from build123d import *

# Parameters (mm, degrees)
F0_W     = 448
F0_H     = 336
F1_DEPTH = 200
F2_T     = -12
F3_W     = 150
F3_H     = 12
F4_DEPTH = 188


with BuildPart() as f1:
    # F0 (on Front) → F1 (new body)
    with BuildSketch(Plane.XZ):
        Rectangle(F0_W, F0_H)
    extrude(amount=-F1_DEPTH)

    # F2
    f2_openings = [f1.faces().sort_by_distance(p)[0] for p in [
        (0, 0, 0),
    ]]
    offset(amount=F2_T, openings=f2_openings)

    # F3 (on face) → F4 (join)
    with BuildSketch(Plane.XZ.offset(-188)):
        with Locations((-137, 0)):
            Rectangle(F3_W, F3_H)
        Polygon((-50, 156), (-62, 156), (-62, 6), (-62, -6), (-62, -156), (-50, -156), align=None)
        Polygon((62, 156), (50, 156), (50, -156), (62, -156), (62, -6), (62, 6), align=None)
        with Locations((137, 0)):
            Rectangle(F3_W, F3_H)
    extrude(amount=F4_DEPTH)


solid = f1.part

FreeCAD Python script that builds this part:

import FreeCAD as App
import Part
import Sketcher
from FreeCAD import Vector


def faces_at(feature, points):
    """Names of the faces that lie closest to the given points."""
    faces = feature.Shape.Faces
    near = lambda p: min(range(len(faces)), key=lambda i: faces[i].distToShape(Part.Vertex(*p))[0])
    return sorted({f"Face{near(p) + 1}" for p in points})

doc = App.newDocument("Part")
body = doc.addObject("PartDesign::Body", "Body")

# Sketch on XZ plane
sketch1 = body.newObject("Sketcher::SketchObject", "Sketch")
sketch1.AttachmentSupport = (doc.getObject("XZ_Plane"), [""])
sketch1.MapMode = "FlatFace"
sketch1.addGeometry(Part.LineSegment(Vector(-224, 168, 0), Vector(-224, -168, 0)), False)
sketch1.addGeometry(Part.LineSegment(Vector(-224, -168, 0), Vector(224, -168, 0)), False)
sketch1.addGeometry(Part.LineSegment(Vector(224, -168, 0), Vector(224, 168, 0)), False)
sketch1.addGeometry(Part.LineSegment(Vector(224, 168, 0), Vector(-224, 168, 0)), False)
sketch1.addConstraint(Sketcher.Constraint("Coincident", 0, 2, 1, 1))
sketch1.addConstraint(Sketcher.Constraint("Coincident", 1, 2, 2, 1))
sketch1.addConstraint(Sketcher.Constraint("Coincident", 2, 2, 3, 1))
sketch1.addConstraint(Sketcher.Constraint("Coincident", 3, 2, 0, 1))
sketch1.addConstraint(Sketcher.Constraint("Vertical", 0))
sketch1.addConstraint(Sketcher.Constraint("Horizontal", 1))
sketch1.addConstraint(Sketcher.Constraint("Vertical", 2))
sketch1.addConstraint(Sketcher.Constraint("Horizontal", 3))
sketch1.addConstraint(Sketcher.Constraint("Symmetric", 0, 2, 2, 2, -1, 1))
sketch1.addConstraint(Sketcher.Constraint("DistanceX", 1, 1, 1, 2, 448.0))
sketch1.addConstraint(Sketcher.Constraint("DistanceY", 0, 2, 0, 1, 336.0))
pad1 = body.newObject("PartDesign::Pad", "Pad")
pad1.Profile = sketch1
pad1.Length = 200
pad1.Reversed = True
doc.recompute()

thickness = body.newObject("PartDesign::Thickness", "Thickness")
thickness.Base = (pad1, faces_at(pad1, [(0, 0, 0)]))
thickness.Value = 12
thickness.Reversed = True
thickness.Join = "Arc"

# Sketch on XZ plane
sketch2 = body.newObject("Sketcher::SketchObject", "Sketch001")
sketch2.AttachmentSupport = (doc.getObject("XZ_Plane"), [""])
sketch2.MapMode = "FlatFace"
sketch2.AttachmentOffset = App.Placement(Vector(0, 0, -188), App.Rotation())
sketch2.addGeometry(Part.LineSegment(Vector(-212, 6, 0), Vector(-212, -6, 0)), False)
sketch2.addGeometry(Part.LineSegment(Vector(-212, -6, 0), Vector(-62, -6, 0)), False)
sketch2.addGeometry(Part.LineSegment(Vector(-62, -6, 0), Vector(-62, -156, 0)), False)
sketch2.addGeometry(Part.LineSegment(Vector(-62, -156, 0), Vector(-50, -156, 0)), False)
sketch2.addGeometry(Part.LineSegment(Vector(-50, -156, 0), Vector(-50, 156, 0)), False)
sketch2.addGeometry(Part.LineSegment(Vector(-50, 156, 0), Vector(-62, 156, 0)), False)
sketch2.addGeometry(Part.LineSegment(Vector(-62, 156, 0), Vector(-62, 6, 0)), False)
sketch2.addGeometry(Part.LineSegment(Vector(-62, 6, 0), Vector(-212, 6, 0)), False)
sketch2.addGeometry(Part.LineSegment(Vector(62, 156, 0), Vector(50, 156, 0)), False)
sketch2.addGeometry(Part.LineSegment(Vector(50, 156, 0), Vector(50, -156, 0)), False)
sketch2.addGeometry(Part.LineSegment(Vector(50, -156, 0), Vector(62, -156, 0)), False)
sketch2.addGeometry(Part.LineSegment(Vector(62, -156, 0), Vector(62, -6, 0)), False)
sketch2.addGeometry(Part.LineSegment(Vector(62, -6, 0), Vector(212, -6, 0)), False)
sketch2.addGeometry(Part.LineSegment(Vector(212, -6, 0), Vector(212, 6, 0)), False)
sketch2.addGeometry(Part.LineSegment(Vector(212, 6, 0), Vector(62, 6, 0)), False)
sketch2.addGeometry(Part.LineSegment(Vector(62, 6, 0), Vector(62, 156, 0)), False)
sketch2.addConstraint(Sketcher.Constraint("Coincident", 0, 2, 1, 1))
sketch2.addConstraint(Sketcher.Constraint("Coincident", 1, 2, 2, 1))
sketch2.addConstraint(Sketcher.Constraint("Coincident", 2, 2, 3, 1))
sketch2.addConstraint(Sketcher.Constraint("Coincident", 3, 2, 4, 1))
sketch2.addConstraint(Sketcher.Constraint("Coincident", 4, 2, 5, 1))
sketch2.addConstraint(Sketcher.Constraint("Coincident", 5, 2, 6, 1))
sketch2.addConstraint(Sketcher.Constraint("Coincident", 6, 2, 7, 1))
sketch2.addConstraint(Sketcher.Constraint("Coincident", 7, 2, 0, 1))
sketch2.addConstraint(Sketcher.Constraint("Coincident", 8, 2, 9, 1))
sketch2.addConstraint(Sketcher.Constraint("Coincident", 9, 2, 10, 1))
sketch2.addConstraint(Sketcher.Constraint("Coincident", 10, 2, 11, 1))
sketch2.addConstraint(Sketcher.Constraint("Coincident", 11, 2, 12, 1))
sketch2.addConstraint(Sketcher.Constraint("Coincident", 12, 2, 13, 1))
sketch2.addConstraint(Sketcher.Constraint("Coincident", 13, 2, 14, 1))
sketch2.addConstraint(Sketcher.Constraint("Coincident", 14, 2, 15, 1))
sketch2.addConstraint(Sketcher.Constraint("Coincident", 15, 2, 8, 1))
sketch2.addConstraint(Sketcher.Constraint("Vertical", 0))
sketch2.addConstraint(Sketcher.Constraint("Horizontal", 1))
sketch2.addConstraint(Sketcher.Constraint("Vertical", 2))
sketch2.addConstraint(Sketcher.Constraint("Horizontal", 3))
sketch2.addConstraint(Sketcher.Constraint("Vertical", 4))
sketch2.addConstraint(Sketcher.Constraint("Horizontal", 5))
sketch2.addConstraint(Sketcher.Constraint("Vertical", 6))
sketch2.addConstraint(Sketcher.Constraint("Horizontal", 7))
sketch2.addConstraint(Sketcher.Constraint("Horizontal", 8))
sketch2.addConstraint(Sketcher.Constraint("Vertical", 9))
sketch2.addConstraint(Sketcher.Constraint("Horizontal", 10))
sketch2.addConstraint(Sketcher.Constraint("Vertical", 11))
sketch2.addConstraint(Sketcher.Constraint("Horizontal", 12))
sketch2.addConstraint(Sketcher.Constraint("Vertical", 13))
sketch2.addConstraint(Sketcher.Constraint("Horizontal", 14))
sketch2.addConstraint(Sketcher.Constraint("Vertical", 15))
sketch2.addConstraint(Sketcher.Constraint("Symmetric", 3, 2, 8, 2, -1, 1))
sketch2.addConstraint(Sketcher.Constraint("Symmetric", 5, 2, 10, 2, -1, 1))
sketch2.addConstraint(Sketcher.Constraint("Symmetric", 7, 2, 12, 2, -1, 1))
sketch2.addConstraint(Sketcher.Constraint("Symmetric", 1, 2, 14, 2, -1, 1))
sketch2.addConstraint(Sketcher.Constraint("Symmetric", 2, 2, 10, 2, -2))
sketch2.addConstraint(Sketcher.Constraint("Horizontal", 1, 2, 11, 2))
sketch2.addConstraint(Sketcher.Constraint("Equal", 10, 0))
sketch2.addConstraint(Sketcher.Constraint("Equal", 14, 2))
sketch2.addConstraint(Sketcher.Constraint("DistanceX", 1, 1, 1, 2, 150.0))
sketch2.addConstraint(Sketcher.Constraint("DistanceX", 3, 1, 3, 2, 12.0))
sketch2.addConstraint(Sketcher.Constraint("DistanceX", 0, 2, -1, 1, 212.0))
pad2 = body.newObject("PartDesign::Pad", "Pad001")
pad2.Profile = sketch2
pad2.Length = 188

doc.recompute()
